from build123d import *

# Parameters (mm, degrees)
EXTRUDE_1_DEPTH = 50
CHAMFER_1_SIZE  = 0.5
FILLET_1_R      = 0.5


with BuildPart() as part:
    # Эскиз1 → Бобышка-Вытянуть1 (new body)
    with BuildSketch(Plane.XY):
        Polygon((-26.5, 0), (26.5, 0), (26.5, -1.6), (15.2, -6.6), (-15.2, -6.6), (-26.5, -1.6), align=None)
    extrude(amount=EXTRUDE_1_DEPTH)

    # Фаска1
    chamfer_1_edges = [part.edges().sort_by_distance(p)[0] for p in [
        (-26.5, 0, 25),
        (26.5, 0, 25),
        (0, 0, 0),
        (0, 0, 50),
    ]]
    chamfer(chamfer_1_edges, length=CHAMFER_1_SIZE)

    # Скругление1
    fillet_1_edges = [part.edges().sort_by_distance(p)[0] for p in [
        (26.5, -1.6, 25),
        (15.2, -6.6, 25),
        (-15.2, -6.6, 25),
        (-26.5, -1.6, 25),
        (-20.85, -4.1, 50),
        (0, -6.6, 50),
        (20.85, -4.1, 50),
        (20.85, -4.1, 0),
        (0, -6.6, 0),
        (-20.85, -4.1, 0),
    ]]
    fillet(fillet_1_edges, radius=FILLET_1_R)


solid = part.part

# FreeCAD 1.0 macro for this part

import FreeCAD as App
import Part
import Sketcher


def edges_at(feature, points):
    """Names of the edges that pass closest to the given points."""
    edges = feature.Shape.Edges
    near = lambda p: min(range(len(edges)), key=lambda i: edges[i].distToShape(Part.Vertex(*p))[0])
    return sorted({f"Edge{near(p) + 1}" for p in points})


def add_polygon(sketch, points):
    """Adds a closed chain of lines whose ends are joined by coincident constraints."""
    first, n = sketch.GeometryCount, len(points)
    for a, b in zip(points, points[1:] + points[:1]):
        sketch.addGeometry(Part.LineSegment(App.Vector(*a, 0), App.Vector(*b, 0)), False)
    for i in range(n):
        sketch.addConstraint(Sketcher.Constraint("Coincident", first + i, 2, first + (i + 1) % n, 1))

doc = App.newDocument("Part")
body = doc.addObject("PartDesign::Body", "Body")

# Sketch on XY plane
sketch1 = doc.addObject("Sketcher::SketchObject", "Sketch")
body.addObject(sketch1)
sketch1.AttachmentSupport = (doc.XY_Plane, [""])
sketch1.MapMode = "FlatFace"
add_polygon(sketch1, [(26.5, 0), (-26.5, 0), (-26.5, -1.6), (-15.2, -6.6), (15.2, -6.6), (26.5, -1.6)])  # lines 0-5
sketch1.addConstraint([
    Sketcher.Constraint("Horizontal", 0),
    Sketcher.Constraint("Vertical", 1),
    Sketcher.Constraint("Horizontal", 3),
    Sketcher.Constraint("Vertical", 5),
    Sketcher.Constraint("Symmetric", 0, 2, 5, 2, -1, 1),
    Sketcher.Constraint("Horizontal", 1, 2, 4, 2),
    Sketcher.Constraint("Equal", 2, 4),
    Sketcher.Constraint("DistanceX", 0, 2, 0, 1, 53.0),
    Sketcher.Constraint("DistanceX", 3, 1, 3, 2, 30.4),
    Sketcher.Constraint("DistanceY", 1, 2, 1, 1, 1.6),
    Sketcher.Constraint("DistanceY", 2, 2, 1, 2, 5.0),
])
pad1 = doc.addObject("PartDesign::Pad", "Pad")
body.addObject(pad1)
pad1.Profile = sketch1
pad1.Length = 50
doc.recompute()

chamfer = doc.addObject("PartDesign::Chamfer", "Chamfer")
body.addObject(chamfer)
chamfer.Base = (pad1, edges_at(pad1, [
    (-26.5, 0, 25),
    (26.5, 0, 25),
    (0, 0, 0),
    (0, 0, 50),
]))
chamfer.Size = 0.5
doc.recompute()

fillet = doc.addObject("PartDesign::Fillet", "Fillet")
body.addObject(fillet)
fillet.Base = (chamfer, edges_at(chamfer, [
    (26.5, -1.6, 25),
    (15.2, -6.6, 25),
    (-15.2, -6.6, 25),
    (-26.5, -1.6, 25),
    (-20.85, -4.1, 50),
    (0, -6.6, 50),
    (20.85, -4.1, 50),
    (20.85, -4.1, 0),
    (0, -6.6, 0),
    (-20.85, -4.1, 0),
]))
fillet.Radius = 0.5

doc.recompute()
